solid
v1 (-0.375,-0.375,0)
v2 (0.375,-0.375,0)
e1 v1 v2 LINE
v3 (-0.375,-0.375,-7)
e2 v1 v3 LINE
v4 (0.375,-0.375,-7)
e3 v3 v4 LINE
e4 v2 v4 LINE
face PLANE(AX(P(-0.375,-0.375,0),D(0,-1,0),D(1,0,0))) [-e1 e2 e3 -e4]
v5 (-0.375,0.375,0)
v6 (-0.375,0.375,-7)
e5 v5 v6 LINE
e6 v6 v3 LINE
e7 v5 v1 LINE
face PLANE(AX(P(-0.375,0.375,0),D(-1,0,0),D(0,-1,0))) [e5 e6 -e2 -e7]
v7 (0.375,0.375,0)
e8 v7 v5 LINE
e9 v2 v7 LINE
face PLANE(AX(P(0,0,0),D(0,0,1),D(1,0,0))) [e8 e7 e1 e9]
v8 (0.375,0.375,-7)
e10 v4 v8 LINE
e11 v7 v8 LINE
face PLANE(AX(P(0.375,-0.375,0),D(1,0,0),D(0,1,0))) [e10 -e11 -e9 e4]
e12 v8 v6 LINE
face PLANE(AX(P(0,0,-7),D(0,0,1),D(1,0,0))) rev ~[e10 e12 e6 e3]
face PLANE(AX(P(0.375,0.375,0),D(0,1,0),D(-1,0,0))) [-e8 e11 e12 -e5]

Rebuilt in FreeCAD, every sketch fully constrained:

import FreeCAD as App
import Part
import Sketcher
Q = App.Units.Quantity


def add_polygon(sketch, points):
    """Adds a closed chain of lines whose ends are joined by coincident constraints."""
    first, n = sketch.GeometryCount, len(points)
    for a, b in zip(points, points[1:] + points[:1]):
        sketch.addGeometry(Part.LineSegment(App.Vector(*a, 0), App.Vector(*b, 0)), False)
    for i in range(n):
        sketch.addConstraint(Sketcher.Constraint("Coincident", first + i, 2, first + (i + 1) % n, 1))

doc = App.newDocument("Part")
body = doc.addObject("PartDesign::Body", "Body")

sketch1 = body.newObject("Sketcher::SketchObject", "Sketch")
sketch1.AttachmentSupport = (doc.getObject("XY_Plane"), [""])
sketch1.MapMode = "FlatFace"
add_polygon(sketch1, [(-0.4, 0.4), (-0.4, -0.4), (0.4, -0.4), (0.4, 0.4)])
sketch1.addConstraint(Sketcher.Constraint("Vertical", 0))
sketch1.addConstraint(Sketcher.Constraint("Horizontal", 1))
sketch1.addConstraint(Sketcher.Constraint("Vertical", 2))
sketch1.addConstraint(Sketcher.Constraint("Horizontal", 3))
sketch1.addConstraint(Sketcher.Constraint("Symmetric", 0, 2, 2, 2, -1, 1))
sketch1.addConstraint(Sketcher.Constraint("Equal", 3, 0))
sketch1.addConstraint(Sketcher.Constraint("DistanceX", 1, 1, 1, 2, Q("0.75 mm")))
pad1 = body.newObject("PartDesign::Pad", "Pad")
pad1.Profile = sketch1
pad1.Length = 7
pad1.Reversed = True

doc.recompute()
